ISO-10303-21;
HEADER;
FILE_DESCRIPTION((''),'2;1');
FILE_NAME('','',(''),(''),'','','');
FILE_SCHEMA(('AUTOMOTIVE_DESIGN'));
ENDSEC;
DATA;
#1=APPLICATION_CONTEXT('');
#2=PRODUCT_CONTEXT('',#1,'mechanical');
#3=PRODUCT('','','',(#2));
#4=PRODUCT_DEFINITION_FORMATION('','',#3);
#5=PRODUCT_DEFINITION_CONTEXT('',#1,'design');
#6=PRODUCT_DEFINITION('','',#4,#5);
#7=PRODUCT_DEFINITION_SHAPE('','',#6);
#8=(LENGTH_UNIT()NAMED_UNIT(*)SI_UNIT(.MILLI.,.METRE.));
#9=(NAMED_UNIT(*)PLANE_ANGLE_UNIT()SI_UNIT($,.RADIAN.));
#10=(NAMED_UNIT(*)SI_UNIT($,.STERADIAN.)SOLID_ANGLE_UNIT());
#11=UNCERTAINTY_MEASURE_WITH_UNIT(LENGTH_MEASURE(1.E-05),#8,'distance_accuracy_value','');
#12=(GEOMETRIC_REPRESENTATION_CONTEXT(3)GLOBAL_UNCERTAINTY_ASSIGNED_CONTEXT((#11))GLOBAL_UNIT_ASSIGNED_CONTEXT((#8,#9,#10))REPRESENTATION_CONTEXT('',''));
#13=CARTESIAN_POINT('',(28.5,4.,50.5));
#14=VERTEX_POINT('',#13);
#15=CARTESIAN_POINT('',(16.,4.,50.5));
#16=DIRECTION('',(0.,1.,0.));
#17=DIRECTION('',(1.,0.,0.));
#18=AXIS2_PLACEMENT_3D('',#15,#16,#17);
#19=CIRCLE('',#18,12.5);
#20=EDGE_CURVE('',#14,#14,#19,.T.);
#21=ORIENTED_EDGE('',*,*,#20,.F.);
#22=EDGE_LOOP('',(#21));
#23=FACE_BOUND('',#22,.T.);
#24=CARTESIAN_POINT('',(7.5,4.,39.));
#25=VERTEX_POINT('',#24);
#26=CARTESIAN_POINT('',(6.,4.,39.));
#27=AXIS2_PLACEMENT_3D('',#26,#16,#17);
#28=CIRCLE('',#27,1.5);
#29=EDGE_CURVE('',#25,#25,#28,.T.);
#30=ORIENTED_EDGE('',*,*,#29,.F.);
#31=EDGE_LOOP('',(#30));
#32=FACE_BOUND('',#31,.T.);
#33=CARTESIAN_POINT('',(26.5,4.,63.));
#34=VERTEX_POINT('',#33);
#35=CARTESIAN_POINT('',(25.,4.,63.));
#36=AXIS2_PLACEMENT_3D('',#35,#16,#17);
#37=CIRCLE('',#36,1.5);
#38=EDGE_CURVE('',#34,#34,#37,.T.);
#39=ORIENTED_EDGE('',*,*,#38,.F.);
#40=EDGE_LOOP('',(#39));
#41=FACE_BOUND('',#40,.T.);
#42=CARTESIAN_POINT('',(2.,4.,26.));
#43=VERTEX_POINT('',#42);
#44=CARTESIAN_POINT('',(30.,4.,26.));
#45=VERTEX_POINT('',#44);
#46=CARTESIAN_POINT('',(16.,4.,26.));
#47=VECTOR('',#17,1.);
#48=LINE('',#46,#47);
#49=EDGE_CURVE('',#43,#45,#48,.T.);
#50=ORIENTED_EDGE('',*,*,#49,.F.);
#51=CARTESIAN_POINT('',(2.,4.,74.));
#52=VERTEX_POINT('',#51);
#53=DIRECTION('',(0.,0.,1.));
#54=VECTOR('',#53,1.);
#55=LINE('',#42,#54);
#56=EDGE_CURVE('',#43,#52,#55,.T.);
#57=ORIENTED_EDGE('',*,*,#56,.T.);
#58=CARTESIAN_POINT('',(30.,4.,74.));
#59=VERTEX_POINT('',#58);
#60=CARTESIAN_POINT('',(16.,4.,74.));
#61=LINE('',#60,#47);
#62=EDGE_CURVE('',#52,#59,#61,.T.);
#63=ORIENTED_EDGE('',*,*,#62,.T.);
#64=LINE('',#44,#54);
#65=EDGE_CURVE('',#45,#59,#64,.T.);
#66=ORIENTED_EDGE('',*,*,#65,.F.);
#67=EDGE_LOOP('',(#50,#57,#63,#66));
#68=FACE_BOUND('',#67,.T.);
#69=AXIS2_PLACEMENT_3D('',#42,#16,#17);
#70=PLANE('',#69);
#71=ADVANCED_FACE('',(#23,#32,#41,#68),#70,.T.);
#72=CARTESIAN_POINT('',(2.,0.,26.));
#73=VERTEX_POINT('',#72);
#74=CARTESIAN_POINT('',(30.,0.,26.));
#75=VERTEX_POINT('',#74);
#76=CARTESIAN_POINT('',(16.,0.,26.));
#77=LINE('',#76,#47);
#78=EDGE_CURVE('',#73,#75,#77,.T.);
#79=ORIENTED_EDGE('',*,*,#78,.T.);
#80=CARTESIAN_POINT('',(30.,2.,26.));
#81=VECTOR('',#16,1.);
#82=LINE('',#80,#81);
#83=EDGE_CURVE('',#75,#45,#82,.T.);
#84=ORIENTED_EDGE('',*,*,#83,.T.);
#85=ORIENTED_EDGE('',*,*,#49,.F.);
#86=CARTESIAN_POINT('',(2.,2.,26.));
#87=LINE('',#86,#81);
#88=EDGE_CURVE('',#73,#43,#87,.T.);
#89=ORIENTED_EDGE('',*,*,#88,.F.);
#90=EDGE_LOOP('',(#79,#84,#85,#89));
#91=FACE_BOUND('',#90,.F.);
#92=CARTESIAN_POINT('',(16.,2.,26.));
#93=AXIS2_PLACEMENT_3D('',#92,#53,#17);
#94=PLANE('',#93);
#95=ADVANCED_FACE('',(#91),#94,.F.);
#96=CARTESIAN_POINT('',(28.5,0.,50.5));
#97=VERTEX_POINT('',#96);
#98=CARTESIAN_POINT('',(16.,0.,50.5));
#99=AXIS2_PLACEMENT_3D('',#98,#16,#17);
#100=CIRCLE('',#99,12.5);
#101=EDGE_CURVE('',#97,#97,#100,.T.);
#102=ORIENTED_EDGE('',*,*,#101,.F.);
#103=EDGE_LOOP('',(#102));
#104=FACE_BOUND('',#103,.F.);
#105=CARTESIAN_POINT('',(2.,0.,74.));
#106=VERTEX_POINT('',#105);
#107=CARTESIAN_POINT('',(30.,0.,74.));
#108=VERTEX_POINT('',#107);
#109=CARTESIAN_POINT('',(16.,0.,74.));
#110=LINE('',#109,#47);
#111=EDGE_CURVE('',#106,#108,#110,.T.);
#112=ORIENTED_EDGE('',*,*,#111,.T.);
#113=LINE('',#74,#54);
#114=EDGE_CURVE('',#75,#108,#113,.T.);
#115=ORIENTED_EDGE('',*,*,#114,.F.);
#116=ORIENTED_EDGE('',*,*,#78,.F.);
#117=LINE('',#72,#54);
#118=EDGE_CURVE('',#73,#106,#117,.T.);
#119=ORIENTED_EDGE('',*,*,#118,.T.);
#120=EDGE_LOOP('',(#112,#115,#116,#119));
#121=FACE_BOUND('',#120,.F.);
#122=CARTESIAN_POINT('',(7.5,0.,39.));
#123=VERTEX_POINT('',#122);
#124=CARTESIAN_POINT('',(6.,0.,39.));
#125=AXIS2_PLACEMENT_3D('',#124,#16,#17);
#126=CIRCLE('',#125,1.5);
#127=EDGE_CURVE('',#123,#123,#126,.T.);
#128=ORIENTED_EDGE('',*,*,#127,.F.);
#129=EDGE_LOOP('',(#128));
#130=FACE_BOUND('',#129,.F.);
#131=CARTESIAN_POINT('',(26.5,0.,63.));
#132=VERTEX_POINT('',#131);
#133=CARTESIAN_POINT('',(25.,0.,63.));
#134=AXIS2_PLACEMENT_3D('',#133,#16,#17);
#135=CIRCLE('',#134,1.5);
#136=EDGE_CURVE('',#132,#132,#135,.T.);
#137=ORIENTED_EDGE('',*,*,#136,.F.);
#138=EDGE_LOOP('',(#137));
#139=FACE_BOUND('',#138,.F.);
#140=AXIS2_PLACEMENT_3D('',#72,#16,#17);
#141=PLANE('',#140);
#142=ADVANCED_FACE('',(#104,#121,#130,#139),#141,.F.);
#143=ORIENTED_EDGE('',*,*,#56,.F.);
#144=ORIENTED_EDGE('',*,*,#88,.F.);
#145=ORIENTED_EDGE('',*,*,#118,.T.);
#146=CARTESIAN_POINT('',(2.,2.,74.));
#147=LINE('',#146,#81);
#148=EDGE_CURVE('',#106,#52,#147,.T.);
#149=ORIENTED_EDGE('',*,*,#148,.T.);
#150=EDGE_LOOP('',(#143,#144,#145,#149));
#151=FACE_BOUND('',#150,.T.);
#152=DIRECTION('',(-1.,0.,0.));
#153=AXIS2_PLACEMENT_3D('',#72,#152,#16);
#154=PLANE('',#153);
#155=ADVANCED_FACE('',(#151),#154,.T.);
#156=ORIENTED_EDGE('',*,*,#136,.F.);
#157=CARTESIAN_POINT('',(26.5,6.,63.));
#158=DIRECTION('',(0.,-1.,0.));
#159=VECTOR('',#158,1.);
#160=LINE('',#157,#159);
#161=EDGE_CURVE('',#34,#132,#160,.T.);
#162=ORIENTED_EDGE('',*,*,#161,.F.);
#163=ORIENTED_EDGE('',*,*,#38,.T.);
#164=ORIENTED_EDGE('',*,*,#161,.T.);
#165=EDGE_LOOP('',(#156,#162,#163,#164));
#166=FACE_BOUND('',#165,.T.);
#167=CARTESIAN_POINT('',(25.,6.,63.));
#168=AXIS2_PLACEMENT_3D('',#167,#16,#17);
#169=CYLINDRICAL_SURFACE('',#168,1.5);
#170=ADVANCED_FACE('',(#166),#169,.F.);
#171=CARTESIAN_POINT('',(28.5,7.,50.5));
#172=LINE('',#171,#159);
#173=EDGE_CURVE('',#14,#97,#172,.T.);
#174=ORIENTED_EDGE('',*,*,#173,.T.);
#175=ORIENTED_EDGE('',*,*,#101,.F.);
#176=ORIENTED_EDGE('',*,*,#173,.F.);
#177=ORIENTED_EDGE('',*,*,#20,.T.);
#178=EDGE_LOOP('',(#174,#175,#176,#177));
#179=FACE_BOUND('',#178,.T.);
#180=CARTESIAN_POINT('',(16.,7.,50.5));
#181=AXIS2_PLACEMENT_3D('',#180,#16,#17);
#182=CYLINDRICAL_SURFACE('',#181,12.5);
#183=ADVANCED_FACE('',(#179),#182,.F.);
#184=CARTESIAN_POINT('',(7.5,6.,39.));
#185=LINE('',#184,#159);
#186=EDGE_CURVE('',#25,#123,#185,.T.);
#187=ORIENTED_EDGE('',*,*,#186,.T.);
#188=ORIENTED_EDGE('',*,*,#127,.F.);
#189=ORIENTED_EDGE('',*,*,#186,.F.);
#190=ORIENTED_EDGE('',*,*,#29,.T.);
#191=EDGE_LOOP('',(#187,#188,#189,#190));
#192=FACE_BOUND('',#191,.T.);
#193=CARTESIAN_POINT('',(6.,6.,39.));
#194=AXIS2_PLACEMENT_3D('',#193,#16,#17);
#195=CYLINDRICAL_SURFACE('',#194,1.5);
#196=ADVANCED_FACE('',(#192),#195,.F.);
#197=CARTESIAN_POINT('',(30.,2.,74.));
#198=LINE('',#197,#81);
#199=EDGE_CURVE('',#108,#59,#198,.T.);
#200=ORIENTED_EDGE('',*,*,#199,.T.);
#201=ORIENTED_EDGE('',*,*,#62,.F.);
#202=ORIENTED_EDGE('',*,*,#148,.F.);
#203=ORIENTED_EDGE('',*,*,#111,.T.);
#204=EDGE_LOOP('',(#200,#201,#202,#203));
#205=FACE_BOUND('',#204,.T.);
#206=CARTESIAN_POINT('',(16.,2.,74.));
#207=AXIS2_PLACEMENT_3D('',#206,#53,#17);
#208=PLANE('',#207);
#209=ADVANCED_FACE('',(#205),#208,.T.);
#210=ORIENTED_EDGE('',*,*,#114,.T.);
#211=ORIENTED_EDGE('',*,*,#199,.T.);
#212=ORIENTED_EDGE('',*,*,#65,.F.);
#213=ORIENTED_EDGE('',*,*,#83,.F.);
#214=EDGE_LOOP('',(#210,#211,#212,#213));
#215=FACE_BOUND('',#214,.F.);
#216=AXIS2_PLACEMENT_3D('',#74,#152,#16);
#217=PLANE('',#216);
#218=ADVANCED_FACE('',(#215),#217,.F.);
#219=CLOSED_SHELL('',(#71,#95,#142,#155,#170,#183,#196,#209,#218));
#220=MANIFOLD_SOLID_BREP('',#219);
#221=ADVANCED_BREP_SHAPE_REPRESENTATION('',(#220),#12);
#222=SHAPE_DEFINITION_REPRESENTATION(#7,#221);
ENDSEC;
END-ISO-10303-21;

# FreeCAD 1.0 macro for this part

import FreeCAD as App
import Part
import Sketcher

V = App.Vector
Q = App.Units.Quantity

doc = App.newDocument("Part")
body = doc.addObject("PartDesign::Body", "Body")

sketch1 = body.newObject("Sketcher::SketchObject", "Sketch")
sketch1.AttachmentSupport = (doc.getObject("XZ_Plane"), [""])
sketch1.MapMode = "FlatFace"
sketch1.AttachmentOffset = App.Placement(V(0, 0, -7), App.Rotation())
sketch1.addGeometry(Part.Circle(V(16, 50, 0), V(0, 0, 1), 12), False)
sketch1.addConstraint([
    Sketcher.Constraint("Diameter", 0, Q("25 mm")),
    Sketcher.Constraint("DistanceX", -1, 1, 0, 3, Q("16 mm")),
    Sketcher.Constraint("DistanceY", -1, 1, 0, 3, Q("50.5 mm")),
])
pad1 = body.newObject("PartDesign::Pad", "Pad")
pad1.Profile = sketch1
pad1.Length = 10
body2 = doc.addObject("PartDesign::Body", "Body001")

sketch2 = body2.newObject("Sketcher::SketchObject", "Sketch001")
sketch2.AttachmentSupport = (doc.getObject("XZ_Plane001"), [""])
sketch2.MapMode = "FlatFace"
sketch2.AttachmentOffset = App.Placement(V(0, 0, -6), App.Rotation())
sketch2.addGeometry(Part.Circle(V(29, 63, 0), V(0, 0, 1), 1.5), False)
sketch2.addConstraint([
    Sketcher.Constraint("Diameter", 0, Q("3 mm")),
    Sketcher.Constraint("DistanceX", -1, 1, 0, 3, Q("29 mm")),
    Sketcher.Constraint("DistanceY", -1, 1, 0, 3, Q("63 mm")),
])
pad2 = body2.newObject("PartDesign::Pad", "Pad001")
pad2.Profile = sketch2
pad2.Length = 10
body3 = doc.addObject("PartDesign::Body", "Body002")
body3.AllowCompound = True

sketch3 = body3.newObject("Sketcher::SketchObject", "Sketch002")
sketch3.AttachmentSupport = (doc.getObject("XZ_Plane002"), [""])
sketch3.MapMode = "FlatFace"
sketch3.AttachmentOffset = App.Placement(V(0, 0, -6), App.Rotation())
sketch3.addGeometry(Part.Circle(V(10, 39, 0), V(0, 0, 1), 1.5), False)
sketch3.addConstraint([
    Sketcher.Constraint("Diameter", 0, Q("3 mm")),
    Sketcher.Constraint("DistanceX", -1, 1, 0, 3, Q("10 mm")),
    Sketcher.Constraint("DistanceY", -1, 1, 0, 3, Q("39 mm")),
])
pad3 = body3.newObject("PartDesign::Pad", "Pad002")
pad3.Profile = sketch3
pad3.Length = 10
doc.recompute()

boolean = body3.newObject("PartDesign::Boolean", "Boolean")
boolean.Type = "Fuse"
boolean.addObjects([body2])
body4 = doc.addObject("PartDesign::Body", "Body003")
body4.AllowCompound = True
doc.recompute()

body3.Placement = App.Placement(V(-4, 0, 0), App.Rotation(V(0, 0, 1), 0))
boolean2 = body4.newObject("PartDesign::Boolean", "Boolean001")
boolean2.Type = "Fuse"
boolean2.addObjects([body3])
body5 = doc.addObject("PartDesign::Body", "Body004")

sketch4 = body5.newObject("Sketcher::SketchObject", "Sketch003")
sketch4.AttachmentSupport = (doc.getObject("XY_Plane004"), [""])
sketch4.MapMode = "FlatFace"
sketch4.AttachmentOffset = App.Placement(V(0, 0, 26), App.Rotation())
sketch4.addGeometry([
    Part.LineSegment(V(2, 4, 0), V(2, 0, 0)),
    Part.LineSegment(V(2, 0, 0), V(30, 0, 0)),
    Part.LineSegment(V(30, 0, 0), V(30, 4, 0)),
    Part.LineSegment(V(30, 4, 0), V(2, 4, 0)),
], False)
sketch4.addConstraint([
    Sketcher.Constraint("Coincident", 0, 2, 1, 1),
    Sketcher.Constraint("Coincident", 1, 2, 2, 1),
    Sketcher.Constraint("Coincident", 2, 2, 3, 1),
    Sketcher.Constraint("Coincident", 3, 2, 0, 1),
    Sketcher.Constraint("Vertical", 0),
    Sketcher.Constraint("Horizontal", 1),
    Sketcher.Constraint("Vertical", 2),
    Sketcher.Constraint("Horizontal", 3),
    Sketcher.Constraint("PointOnObject", 0, 2, -1),
    Sketcher.Constraint("DistanceX", 1, 1, 1, 2, Q("28 mm")),
    Sketcher.Constraint("DistanceY", 0, 2, 0, 1, Q("4 mm")),
    Sketcher.Constraint("DistanceX", -1, 1, 0, 2, Q("2 mm")),
])
pad4 = body5.newObject("PartDesign::Pad", "Pad003")
pad4.Profile = sketch4
pad4.Length = 48
doc.recompute()

boolean3 = body5.newObject("PartDesign::Boolean", "Boolean002")
boolean3.Type = "Cut"
boolean3.addObjects([body4])
doc.recompute()

boolean4 = body5.newObject("PartDesign::Boolean", "Boolean003")
boolean4.Type = "Cut"
boolean4.addObjects([body])

doc.recompute()
